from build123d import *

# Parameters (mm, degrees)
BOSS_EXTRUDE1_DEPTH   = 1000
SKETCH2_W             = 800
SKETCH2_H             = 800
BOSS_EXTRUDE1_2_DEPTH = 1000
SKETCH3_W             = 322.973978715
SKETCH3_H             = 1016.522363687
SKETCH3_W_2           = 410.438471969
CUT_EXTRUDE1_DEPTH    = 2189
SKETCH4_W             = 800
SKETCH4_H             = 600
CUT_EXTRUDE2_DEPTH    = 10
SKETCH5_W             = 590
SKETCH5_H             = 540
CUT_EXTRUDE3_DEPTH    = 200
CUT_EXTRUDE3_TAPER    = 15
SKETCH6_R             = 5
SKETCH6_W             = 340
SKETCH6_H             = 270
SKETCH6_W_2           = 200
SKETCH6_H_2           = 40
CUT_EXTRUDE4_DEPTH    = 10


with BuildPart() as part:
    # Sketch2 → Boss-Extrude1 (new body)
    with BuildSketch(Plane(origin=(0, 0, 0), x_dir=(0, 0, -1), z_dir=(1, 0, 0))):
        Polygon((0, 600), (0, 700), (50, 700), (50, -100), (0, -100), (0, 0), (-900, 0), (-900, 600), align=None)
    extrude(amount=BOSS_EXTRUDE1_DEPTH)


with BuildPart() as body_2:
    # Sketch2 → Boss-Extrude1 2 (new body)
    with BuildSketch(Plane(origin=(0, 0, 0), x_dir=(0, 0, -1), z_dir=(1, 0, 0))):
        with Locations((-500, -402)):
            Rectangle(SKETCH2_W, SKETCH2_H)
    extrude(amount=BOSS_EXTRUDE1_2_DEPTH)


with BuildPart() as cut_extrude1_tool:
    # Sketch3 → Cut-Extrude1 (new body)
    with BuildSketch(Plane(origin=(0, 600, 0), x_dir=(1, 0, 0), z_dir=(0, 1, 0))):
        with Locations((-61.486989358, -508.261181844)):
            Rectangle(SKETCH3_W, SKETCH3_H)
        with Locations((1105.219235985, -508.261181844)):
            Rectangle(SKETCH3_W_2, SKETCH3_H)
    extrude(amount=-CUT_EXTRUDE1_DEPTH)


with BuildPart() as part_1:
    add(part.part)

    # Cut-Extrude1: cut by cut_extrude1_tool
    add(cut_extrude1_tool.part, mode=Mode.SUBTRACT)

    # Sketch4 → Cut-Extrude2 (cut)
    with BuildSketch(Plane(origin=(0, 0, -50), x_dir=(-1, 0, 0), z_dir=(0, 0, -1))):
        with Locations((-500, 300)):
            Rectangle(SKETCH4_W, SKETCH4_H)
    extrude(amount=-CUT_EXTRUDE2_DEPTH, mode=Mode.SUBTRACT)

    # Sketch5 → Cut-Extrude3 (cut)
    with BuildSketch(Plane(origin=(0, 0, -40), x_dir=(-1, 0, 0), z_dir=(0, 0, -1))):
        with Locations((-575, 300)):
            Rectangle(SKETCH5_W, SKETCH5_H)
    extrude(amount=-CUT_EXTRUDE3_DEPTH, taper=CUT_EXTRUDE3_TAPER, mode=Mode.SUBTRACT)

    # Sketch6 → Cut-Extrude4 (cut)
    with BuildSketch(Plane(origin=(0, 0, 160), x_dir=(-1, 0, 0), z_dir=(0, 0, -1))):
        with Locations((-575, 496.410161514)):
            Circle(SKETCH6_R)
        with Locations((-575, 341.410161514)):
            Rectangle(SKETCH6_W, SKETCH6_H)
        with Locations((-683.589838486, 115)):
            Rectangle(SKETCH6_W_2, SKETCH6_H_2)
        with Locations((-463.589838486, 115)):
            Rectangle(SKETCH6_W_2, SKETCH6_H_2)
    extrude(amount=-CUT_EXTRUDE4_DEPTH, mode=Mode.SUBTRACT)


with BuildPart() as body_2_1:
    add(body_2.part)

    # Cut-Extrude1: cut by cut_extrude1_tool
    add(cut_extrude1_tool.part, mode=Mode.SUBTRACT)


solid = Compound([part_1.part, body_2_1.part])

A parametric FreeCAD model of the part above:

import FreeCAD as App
import Part
import Sketcher
from FreeCAD import Vector
Q = App.Units.Quantity


def add_polygon(sketch, points):
    """Adds a closed chain of lines whose ends are joined by coincident constraints."""
    first, n = sketch.GeometryCount, len(points)
    for a, b in zip(points, points[1:] + points[:1]):
        sketch.addGeometry(Part.LineSegment(App.Vector(*a, 0), App.Vector(*b, 0)), False)
    for i in range(n):
        sketch.addConstraint(Sketcher.Constraint("Coincident", first + i, 2, first + (i + 1) % n, 1))

doc = App.newDocument("Part")
body = doc.addObject("PartDesign::Body", "Body")

# Sketch on YZ plane
sketch1 = body.newObject("Sketcher::SketchObject", "Sketch")
sketch1.AttachmentSupport = (doc.getObject("YZ_Plane"), [""])
sketch1.MapMode = "FlatFace"
add_polygon(sketch1, [(700, 0), (600, 0), (600, 900), (0, 900), (0, 0), (-100, 0), (-100, -50), (700, -50)])  # lines 0-7
sketch1.addConstraint([
    Sketcher.Constraint("Horizontal", 0),
    Sketcher.Constraint("Vertical", 1),
    Sketcher.Constraint("Horizontal", 2),
    Sketcher.Constraint("Vertical", 3),
    Sketcher.Constraint("Horizontal", 4),
    Sketcher.Constraint("Vertical", 5),
    Sketcher.Constraint("Horizontal", 6),
    Sketcher.Constraint("Vertical", 7),
    Sketcher.Constraint("Coincident", 3, 2, -1, 1),
    Sketcher.Constraint("PointOnObject", 0, 2, -1),
    Sketcher.Constraint("Equal", 0, 4),
    Sketcher.Constraint("DistanceX", 0, 2, 0, 1, Q("100 mm")),
    Sketcher.Constraint("DistanceX", 2, 2, 2, 1, Q("600 mm")),
    Sketcher.Constraint("DistanceY", 1, 1, 1, 2, Q("900 mm")),
    Sketcher.Constraint("DistanceY", 5, 2, 5, 1, Q("50 mm")),
])
pad1 = body.newObject("PartDesign::Pad", "Pad")
pad1.Profile = sketch1
pad1.Length = 1000
body2 = doc.addObject("PartDesign::Body", "Body001")

# Sketch on YZ plane
sketch2 = body2.newObject("Sketcher::SketchObject", "Sketch001")
sketch2.AttachmentSupport = (doc.getObject("YZ_Plane001"), [""])
sketch2.MapMode = "FlatFace"
add_polygon(sketch2, [(-2, 900), (-802, 900), (-802, 100), (-2, 100)])  # lines 0-3
sketch2.addConstraint([
    Sketcher.Constraint("Horizontal", 0),
    Sketcher.Constraint("Vertical", 1),
    Sketcher.Constraint("Horizontal", 2),
    Sketcher.Constraint("Vertical", 3),
    Sketcher.Constraint("Equal", 2, 1),
    Sketcher.Constraint("DistanceX", 0, 2, 0, 1, Q("800 mm")),
    Sketcher.Constraint("DistanceX", 0, 2, -1, 1, Q("802 mm")),
    Sketcher.Constraint("DistanceY", -1, 1, 0, 2, Q("900 mm")),
])
pad2 = body2.newObject("PartDesign::Pad", "Pad001")
pad2.Profile = sketch2
pad2.Length = 1000
body3 = doc.addObject("PartDesign::Body", "Body002")
body3.AllowCompound = True

# Sketch on XZ plane
sketch3 = body3.newObject("Sketcher::SketchObject", "Sketch002")
sketch3.AttachmentSupport = (doc.getObject("XZ_Plane002"), [""])
sketch3.MapMode = "FlatFace"
sketch3.AttachmentOffset = App.Placement(Vector(0, 0, -600), App.Rotation())
add_polygon(sketch3, [(-223, 0), (-223, 1017), (100, 1017), (100, 0)])  # lines 0-3
add_polygon(sketch3, [(900, 0), (900, 1017), (1310, 1017), (1310, 0)])  # lines 4-7
sketch3.addConstraint([
    Sketcher.Constraint("Vertical", 0),
    Sketcher.Constraint("Horizontal", 1),
    Sketcher.Constraint("Vertical", 2),
    Sketcher.Constraint("Horizontal", 3),
    Sketcher.Constraint("Vertical", 4),
    Sketcher.Constraint("Horizontal", 5),
    Sketcher.Constraint("Vertical", 6),
    Sketcher.Constraint("Horizontal", 7),
    Sketcher.Constraint("PointOnObject", 2, 2, -1),
    Sketcher.Constraint("PointOnObject", 6, 2, -1),
    Sketcher.Constraint("Horizontal", 1, 2, 4, 2),
    Sketcher.Constraint("DistanceX", -1, 1, 1, 2, Q("100 mm")),
    Sketcher.Constraint("DistanceX", -1, 1, 4, 2, Q("900 mm")),
    Sketcher.Constraint("DistanceX", 1, 1, 1, 2, Q("322.973979 mm")),
    Sketcher.Constraint("DistanceX", 5, 1, 5, 2, Q("410.438472 mm")),
    Sketcher.Constraint("DistanceY", 0, 1, 0, 2, Q("1016.522364 mm")),
])
pad3 = body3.newObject("PartDesign::Pad", "Pad002")
pad3.Profile = sketch3
pad3.Length = 2189
doc.recompute()

body4 = doc.addObject("PartDesign::Body", "Body003")
body4.BaseFeature = body3
boolean = body.newObject("PartDesign::Boolean", "Boolean")
boolean.Type = "Cut"
boolean.addObjects([body4])
doc.recompute()

# Sketch on XY plane
sketch4 = body.newObject("Sketcher::SketchObject", "Sketch003")
sketch4.AttachmentSupport = (doc.getObject("XY_Plane"), [""])
sketch4.MapMode = "FlatFace"
sketch4.AttachmentOffset = App.Placement(Vector(0, 0, -50), App.Rotation())
add_polygon(sketch4, [(900, 600), (900, 0), (100, 0), (100, 600)])  # lines 0-3
sketch4.addConstraint([
    Sketcher.Constraint("Vertical", 0),
    Sketcher.Constraint("Horizontal", 1),
    Sketcher.Constraint("Vertical", 2),
    Sketcher.Constraint("Horizontal", 3),
    Sketcher.Constraint("PointOnObject", 0, 2, -1),
    Sketcher.Constraint("DistanceX", 1, 2, 1, 1, Q("800 mm")),
    Sketcher.Constraint("DistanceY", 0, 2, 0, 1, Q("600 mm")),
    Sketcher.Constraint("DistanceX", -1, 1, 0, 2, Q("900 mm")),
])
pocket1 = body.newObject("PartDesign::Pocket", "Pocket")
pocket1.Profile = sketch4
pocket1.Length = 10
pocket1.Reversed = True

# Sketch on XY plane
sketch5 = body.newObject("Sketcher::SketchObject", "Sketch004")
sketch5.AttachmentSupport = (doc.getObject("XY_Plane"), [""])
sketch5.MapMode = "FlatFace"
sketch5.AttachmentOffset = App.Placement(Vector(0, 0, -40), App.Rotation())
add_polygon(sketch5, [(870, 570), (870, 30), (280, 30), (280, 570)])  # lines 0-3
sketch5.addConstraint([
    Sketcher.Constraint("Vertical", 0),
    Sketcher.Constraint("Horizontal", 1),
    Sketcher.Constraint("Vertical", 2),
    Sketcher.Constraint("Horizontal", 3),
    Sketcher.Constraint("DistanceX", 1, 2, 1, 1, Q("590 mm")),
    Sketcher.Constraint("DistanceY", 0, 2, 0, 1, Q("540 mm")),
    Sketcher.Constraint("DistanceX", -1, 1, 0, 2, Q("870 mm")),
    Sketcher.Constraint("DistanceY", -1, 1, 0, 2, Q("30 mm")),
])
pocket2 = body.newObject("PartDesign::Pocket", "Pocket001")
pocket2.Profile = sketch5
pocket2.Length = 200
pocket2.Reversed = True
pocket2.TaperAngle = -15

# Sketch on XY plane
sketch6 = body.newObject("Sketcher::SketchObject", "Sketch005")
sketch6.AttachmentSupport = (doc.getObject("XY_Plane"), [""])
sketch6.MapMode = "FlatFace"
sketch6.AttachmentOffset = App.Placement(Vector(0, 0, 160), App.Rotation())
sketch6.addGeometry(Part.Circle(Vector(575, 496, 0), Vector(0, 0, 1), 5), False)  # 0
add_polygon(sketch6, [(745, 476), (745, 206), (405, 206), (405, 476)])  # lines 1-4
add_polygon(sketch6, [(784, 135), (784, 95), (584, 95), (584, 135)])  # lines 5-8
add_polygon(sketch6, [(564, 135), (564, 95), (364, 95), (364, 135)])  # lines 9-12
sketch6.addConstraint([
    Sketcher.Constraint("Vertical", 1),
    Sketcher.Constraint("Horizontal", 2),
    Sketcher.Constraint("Vertical", 3),
    Sketcher.Constraint("Horizontal", 4),
    Sketcher.Constraint("Vertical", 5),
    Sketcher.Constraint("Horizontal", 6),
    Sketcher.Constraint("Vertical", 7),
    Sketcher.Constraint("Horizontal", 8),
    Sketcher.Constraint("Vertical", 9),
    Sketcher.Constraint("Horizontal", 10),
    Sketcher.Constraint("Vertical", 11),
    Sketcher.Constraint("Horizontal", 12),
    Sketcher.Constraint("Horizontal", 6, 2, 9, 2),
    Sketcher.Constraint("Horizontal", 8, 2, 11, 2),
    Sketcher.Constraint("Equal", 8, 10),
    Sketcher.Constraint("Diameter", 0, Q("10 mm")),
    Sketcher.Constraint("DistanceX", 2, 2, 2, 1, Q("340 mm")),
    Sketcher.Constraint("DistanceX", 6, 2, 6, 1, Q("200 mm")),
    Sketcher.Constraint("DistanceY", 1, 2, 1, 1, Q("270 mm")),
    Sketcher.Constraint("DistanceY", 5, 2, 5, 1, Q("40 mm")),
    Sketcher.Constraint("DistanceX", -1, 1, 0, 3, Q("575 mm")),
    Sketcher.Constraint("DistanceX", -1, 1, 1, 2, Q("745 mm")),
    Sketcher.Constraint("DistanceY", -1, 1, 5, 2, Q("95 mm")),
    Sketcher.Constraint("DistanceY", 1, 2, 0, 3, Q("290 mm")),
    Sketcher.Constraint("DistanceX", 9, 2, 6, 2, Q("20 mm")),
    Sketcher.Constraint("DistanceY", -1, 1, 0, 3, Q("496.410162 mm")),
    Sketcher.Constraint("DistanceX", -1, 1, 5, 2, Q("783.589838 mm")),
])
pocket3 = body.newObject("PartDesign::Pocket", "Pocket002")
pocket3.Profile = sketch6
pocket3.Length = 10
pocket3.Reversed = True
doc.recompute()

boolean2 = body2.newObject("PartDesign::Boolean", "Boolean001")
boolean2.Type = "Cut"
boolean2.addObjects([body3])

doc.recompute()
